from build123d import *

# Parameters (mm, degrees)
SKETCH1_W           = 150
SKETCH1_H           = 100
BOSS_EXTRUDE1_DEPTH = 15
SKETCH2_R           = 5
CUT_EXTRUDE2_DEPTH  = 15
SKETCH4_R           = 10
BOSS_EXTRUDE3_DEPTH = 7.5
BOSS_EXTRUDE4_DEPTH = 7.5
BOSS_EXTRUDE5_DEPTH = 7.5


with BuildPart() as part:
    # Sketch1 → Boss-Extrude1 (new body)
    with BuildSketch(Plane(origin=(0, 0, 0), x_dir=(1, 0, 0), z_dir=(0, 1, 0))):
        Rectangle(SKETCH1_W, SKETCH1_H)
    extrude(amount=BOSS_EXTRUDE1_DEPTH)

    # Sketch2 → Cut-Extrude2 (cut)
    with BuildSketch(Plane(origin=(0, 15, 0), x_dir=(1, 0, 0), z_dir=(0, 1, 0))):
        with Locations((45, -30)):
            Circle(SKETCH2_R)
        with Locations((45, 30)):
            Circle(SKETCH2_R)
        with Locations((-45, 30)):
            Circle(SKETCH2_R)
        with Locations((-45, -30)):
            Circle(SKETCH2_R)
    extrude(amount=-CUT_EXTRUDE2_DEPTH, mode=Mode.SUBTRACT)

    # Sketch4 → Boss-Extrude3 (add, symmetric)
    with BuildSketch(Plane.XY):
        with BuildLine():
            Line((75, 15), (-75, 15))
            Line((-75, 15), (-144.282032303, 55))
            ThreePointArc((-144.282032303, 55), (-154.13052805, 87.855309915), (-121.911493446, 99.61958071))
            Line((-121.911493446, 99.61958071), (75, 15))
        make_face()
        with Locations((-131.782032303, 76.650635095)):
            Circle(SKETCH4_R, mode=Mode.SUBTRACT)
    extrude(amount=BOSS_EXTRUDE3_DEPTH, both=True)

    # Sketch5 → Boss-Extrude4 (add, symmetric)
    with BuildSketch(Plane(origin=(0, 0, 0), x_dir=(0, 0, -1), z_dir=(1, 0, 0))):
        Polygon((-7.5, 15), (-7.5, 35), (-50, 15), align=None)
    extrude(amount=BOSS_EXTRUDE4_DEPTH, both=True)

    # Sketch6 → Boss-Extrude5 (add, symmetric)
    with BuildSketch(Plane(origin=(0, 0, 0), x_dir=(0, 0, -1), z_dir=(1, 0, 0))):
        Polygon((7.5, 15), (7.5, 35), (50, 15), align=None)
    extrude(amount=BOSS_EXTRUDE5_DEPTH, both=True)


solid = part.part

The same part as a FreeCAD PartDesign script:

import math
import FreeCAD as App
import Part
import Sketcher

V = App.Vector
Q = App.Units.Quantity

doc = App.newDocument("Part")
body = doc.addObject("PartDesign::Body", "Body")

# Sketch on XZ plane
sketch1 = body.newObject("Sketcher::SketchObject", "Sketch")
sketch1.AttachmentSupport = (doc.getObject("XZ_Plane"), [""])
sketch1.MapMode = "FlatFace"
sketch1.addGeometry(Part.LineSegment(V(-75, -50, 0), V(-75, 50, 0)), False)
sketch1.addGeometry(Part.LineSegment(V(-75, 50, 0), V(75, 50, 0)), False)
sketch1.addGeometry(Part.LineSegment(V(75, 50, 0), V(75, -50, 0)), False)
sketch1.addGeometry(Part.LineSegment(V(75, -50, 0), V(-75, -50, 0)), False)
sketch1.addConstraint(Sketcher.Constraint("Coincident", 0, 2, 1, 1))
sketch1.addConstraint(Sketcher.Constraint("Coincident", 1, 2, 2, 1))
sketch1.addConstraint(Sketcher.Constraint("Coincident", 2, 2, 3, 1))
sketch1.addConstraint(Sketcher.Constraint("Coincident", 3, 2, 0, 1))
sketch1.addConstraint(Sketcher.Constraint("Vertical", 0))
sketch1.addConstraint(Sketcher.Constraint("Horizontal", 1))
sketch1.addConstraint(Sketcher.Constraint("Vertical", 2))
sketch1.addConstraint(Sketcher.Constraint("Horizontal", 3))
sketch1.addConstraint(Sketcher.Constraint("Symmetric", 0, 2, 2, 2, -1, 1))
sketch1.addConstraint(Sketcher.Constraint("DistanceX", 1, 1, 1, 2, Q("150 mm")))
sketch1.addConstraint(Sketcher.Constraint("DistanceY", 0, 1, 0, 2, Q("100 mm")))
pad1 = body.newObject("PartDesign::Pad", "Pad")
pad1.Profile = sketch1
pad1.Length = 15
pad1.Reversed = True

# Sketch on XZ plane
sketch2 = body.newObject("Sketcher::SketchObject", "Sketch001")
sketch2.AttachmentSupport = (doc.getObject("XZ_Plane"), [""])
sketch2.MapMode = "FlatFace"
sketch2.AttachmentOffset = App.Placement(V(0, 0, -15), App.Rotation())
sketch2.addGeometry(Part.Circle(V(45, 30, 0), V(0, 0, 1), 5), False)
sketch2.addGeometry(Part.Circle(V(45, -30, 0), V(0, 0, 1), 5), False)
sketch2.addGeometry(Part.Circle(V(-45, -30, 0), V(0, 0, 1), 5), False)
sketch2.addGeometry(Part.Circle(V(-45, 30, 0), V(0, 0, 1), 5), False)
sketch2.addConstraint(Sketcher.Constraint("Equal", 0, 1))
sketch2.addConstraint(Sketcher.Constraint("Equal", 1, 2))
sketch2.addConstraint(Sketcher.Constraint("Equal", 2, 3))
sketch2.addConstraint(Sketcher.Constraint("Symmetric", 0, 3, 2, 3, -1, 1))
sketch2.addConstraint(Sketcher.Constraint("Symmetric", 1, 3, 3, 3, -1, 1))
sketch2.addConstraint(Sketcher.Constraint("Symmetric", 1, 3, 2, 3, -2))
sketch2.addConstraint(Sketcher.Constraint("Diameter", 0, Q("10 mm")))
sketch2.addConstraint(Sketcher.Constraint("DistanceX", -1, 1, 0, 3, Q("45 mm")))
sketch2.addConstraint(Sketcher.Constraint("DistanceY", -1, 1, 0, 3, Q("30 mm")))
pocket1 = body.newObject("PartDesign::Pocket", "Pocket")
pocket1.Profile = sketch2
pocket1.Length = 15
pocket1.Reversed = True

# Sketch on XY plane
sketch3 = body.newObject("Sketcher::SketchObject", "Sketch002")
sketch3.AttachmentSupport = (doc.getObject("XY_Plane"), [""])
sketch3.MapMode = "FlatFace"
sketch3.addGeometry(Part.LineSegment(V(-75, 15, 0), V(75, 15, 0)), False)
sketch3.addGeometry(Part.LineSegment(V(75, 15, 0), V(-122, 100, 0)), False)
sketch3.addGeometry(Part.ArcOfCircle(Part.Circle(V(-132, 77, 0), V(0, 0, 1), 25), math.radians(67), math.radians(240)), False)
sketch3.addGeometry(Part.LineSegment(V(-144, 55, 0), V(-75, 15, 0)), False)
sketch3.addGeometry(Part.Circle(V(-132, 77, 0), V(0, 0, 1), 10), False)
sketch3.addConstraint(Sketcher.Constraint("Coincident", 0, 2, 1, 1))
sketch3.addConstraint(Sketcher.Constraint("Tangent", 1, 2, 2, 1))
sketch3.addConstraint(Sketcher.Constraint("Tangent", 2, 2, 3, 1))
sketch3.addConstraint(Sketcher.Constraint("Coincident", 3, 2, 0, 1))
sketch3.addConstraint(Sketcher.Constraint("Horizontal", 0))
sketch3.addConstraint(Sketcher.Constraint("Coincident", 4, 3, 2, 3))
sketch3.addConstraint(Sketcher.Constraint("Diameter", 4, Q("20 mm")))
sketch3.addConstraint(Sketcher.Constraint("Radius", 2, Q("25 mm")))
sketch3.addConstraint(Sketcher.Constraint("DistanceX", 0, 1, 0, 2, Q("150 mm")))
sketch3.addConstraint(Sketcher.Constraint("Angle", 3, Q("-30 deg")))
sketch3.addConstraint(Sketcher.Constraint("Distance", 3, Q("80 mm")))
sketch3.addConstraint(Sketcher.Constraint("DistanceX", -1, 1, 0, 2, Q("75 mm")))
sketch3.addConstraint(Sketcher.Constraint("DistanceY", -1, 1, 0, 2, Q("15 mm")))
pad2 = body.newObject("PartDesign::Pad", "Pad001")
pad2.Profile = sketch3
pad2.Length = 15
pad2.Midplane = True

# Sketch on YZ plane
sketch4 = body.newObject("Sketcher::SketchObject", "Sketch003")
sketch4.AttachmentSupport = (doc.getObject("YZ_Plane"), [""])
sketch4.MapMode = "FlatFace"
sketch4.addGeometry(Part.LineSegment(V(15, 8, 0), V(35, 8, 0)), False)
sketch4.addGeometry(Part.LineSegment(V(35, 8, 0), V(15, 50, 0)), False)
sketch4.addGeometry(Part.LineSegment(V(15, 50, 0), V(15, 8, 0)), False)
sketch4.addConstraint(Sketcher.Constraint("Coincident", 0, 2, 1, 1))
sketch4.addConstraint(Sketcher.Constraint("Coincident", 1, 2, 2, 1))
sketch4.addConstraint(Sketcher.Constraint("Coincident", 2, 2, 0, 1))
sketch4.addConstraint(Sketcher.Constraint("Horizontal", 0))
sketch4.addConstraint(Sketcher.Constraint("Vertical", 2))
sketch4.addConstraint(Sketcher.Constraint("DistanceX", 0, 1, 0, 2, Q("20 mm")))
sketch4.addConstraint(Sketcher.Constraint("DistanceY", 2, 2, 2, 1, Q("42.5 mm")))
sketch4.addConstraint(Sketcher.Constraint("DistanceX", -1, 1, 0, 2, Q("35 mm")))
sketch4.addConstraint(Sketcher.Constraint("DistanceY", -1, 1, 1, 2, Q("50 mm")))
pad3 = body.newObject("PartDesign::Pad", "Pad002")
pad3.Profile = sketch4
pad3.Length = 15
pad3.Midplane = True

# Sketch on YZ plane
sketch5 = body.newObject("Sketcher::SketchObject", "Sketch004")
sketch5.AttachmentSupport = (doc.getObject("YZ_Plane"), [""])
sketch5.MapMode = "FlatFace"
sketch5.addGeometry(Part.LineSegment(V(35, -8, 0), V(15, -8, 0)), False)
sketch5.addGeometry(Part.LineSegment(V(15, -8, 0), V(15, -50, 0)), False)
sketch5.addGeometry(Part.LineSegment(V(15, -50, 0), V(35, -8, 0)), False)
sketch5.addConstraint(Sketcher.Constraint("Coincident", 0, 2, 1, 1))
sketch5.addConstraint(Sketcher.Constraint("Coincident", 1, 2, 2, 1))
sketch5.addConstraint(Sketcher.Constraint("Coincident", 2, 2, 0, 1))
sketch5.addConstraint(Sketcher.Constraint("Horizontal", 0))
sketch5.addConstraint(Sketcher.Constraint("Vertical", 1))
sketch5.addConstraint(Sketcher.Constraint("DistanceX", 0, 2, 0, 1, Q("20 mm")))
sketch5.addConstraint(Sketcher.Constraint("DistanceY", 1, 2, 1, 1, Q("42.5 mm")))
sketch5.addConstraint(Sketcher.Constraint("DistanceX", -1, 1, 0, 2, Q("15 mm")))
sketch5.addConstraint(Sketcher.Constraint("DistanceY", 1, 2, -1, 1, Q("50 mm")))
pad4 = body.newObject("PartDesign::Pad", "Pad003")
pad4.Profile = sketch5
pad4.Length = 15
pad4.Midplane = True

doc.recompute()
